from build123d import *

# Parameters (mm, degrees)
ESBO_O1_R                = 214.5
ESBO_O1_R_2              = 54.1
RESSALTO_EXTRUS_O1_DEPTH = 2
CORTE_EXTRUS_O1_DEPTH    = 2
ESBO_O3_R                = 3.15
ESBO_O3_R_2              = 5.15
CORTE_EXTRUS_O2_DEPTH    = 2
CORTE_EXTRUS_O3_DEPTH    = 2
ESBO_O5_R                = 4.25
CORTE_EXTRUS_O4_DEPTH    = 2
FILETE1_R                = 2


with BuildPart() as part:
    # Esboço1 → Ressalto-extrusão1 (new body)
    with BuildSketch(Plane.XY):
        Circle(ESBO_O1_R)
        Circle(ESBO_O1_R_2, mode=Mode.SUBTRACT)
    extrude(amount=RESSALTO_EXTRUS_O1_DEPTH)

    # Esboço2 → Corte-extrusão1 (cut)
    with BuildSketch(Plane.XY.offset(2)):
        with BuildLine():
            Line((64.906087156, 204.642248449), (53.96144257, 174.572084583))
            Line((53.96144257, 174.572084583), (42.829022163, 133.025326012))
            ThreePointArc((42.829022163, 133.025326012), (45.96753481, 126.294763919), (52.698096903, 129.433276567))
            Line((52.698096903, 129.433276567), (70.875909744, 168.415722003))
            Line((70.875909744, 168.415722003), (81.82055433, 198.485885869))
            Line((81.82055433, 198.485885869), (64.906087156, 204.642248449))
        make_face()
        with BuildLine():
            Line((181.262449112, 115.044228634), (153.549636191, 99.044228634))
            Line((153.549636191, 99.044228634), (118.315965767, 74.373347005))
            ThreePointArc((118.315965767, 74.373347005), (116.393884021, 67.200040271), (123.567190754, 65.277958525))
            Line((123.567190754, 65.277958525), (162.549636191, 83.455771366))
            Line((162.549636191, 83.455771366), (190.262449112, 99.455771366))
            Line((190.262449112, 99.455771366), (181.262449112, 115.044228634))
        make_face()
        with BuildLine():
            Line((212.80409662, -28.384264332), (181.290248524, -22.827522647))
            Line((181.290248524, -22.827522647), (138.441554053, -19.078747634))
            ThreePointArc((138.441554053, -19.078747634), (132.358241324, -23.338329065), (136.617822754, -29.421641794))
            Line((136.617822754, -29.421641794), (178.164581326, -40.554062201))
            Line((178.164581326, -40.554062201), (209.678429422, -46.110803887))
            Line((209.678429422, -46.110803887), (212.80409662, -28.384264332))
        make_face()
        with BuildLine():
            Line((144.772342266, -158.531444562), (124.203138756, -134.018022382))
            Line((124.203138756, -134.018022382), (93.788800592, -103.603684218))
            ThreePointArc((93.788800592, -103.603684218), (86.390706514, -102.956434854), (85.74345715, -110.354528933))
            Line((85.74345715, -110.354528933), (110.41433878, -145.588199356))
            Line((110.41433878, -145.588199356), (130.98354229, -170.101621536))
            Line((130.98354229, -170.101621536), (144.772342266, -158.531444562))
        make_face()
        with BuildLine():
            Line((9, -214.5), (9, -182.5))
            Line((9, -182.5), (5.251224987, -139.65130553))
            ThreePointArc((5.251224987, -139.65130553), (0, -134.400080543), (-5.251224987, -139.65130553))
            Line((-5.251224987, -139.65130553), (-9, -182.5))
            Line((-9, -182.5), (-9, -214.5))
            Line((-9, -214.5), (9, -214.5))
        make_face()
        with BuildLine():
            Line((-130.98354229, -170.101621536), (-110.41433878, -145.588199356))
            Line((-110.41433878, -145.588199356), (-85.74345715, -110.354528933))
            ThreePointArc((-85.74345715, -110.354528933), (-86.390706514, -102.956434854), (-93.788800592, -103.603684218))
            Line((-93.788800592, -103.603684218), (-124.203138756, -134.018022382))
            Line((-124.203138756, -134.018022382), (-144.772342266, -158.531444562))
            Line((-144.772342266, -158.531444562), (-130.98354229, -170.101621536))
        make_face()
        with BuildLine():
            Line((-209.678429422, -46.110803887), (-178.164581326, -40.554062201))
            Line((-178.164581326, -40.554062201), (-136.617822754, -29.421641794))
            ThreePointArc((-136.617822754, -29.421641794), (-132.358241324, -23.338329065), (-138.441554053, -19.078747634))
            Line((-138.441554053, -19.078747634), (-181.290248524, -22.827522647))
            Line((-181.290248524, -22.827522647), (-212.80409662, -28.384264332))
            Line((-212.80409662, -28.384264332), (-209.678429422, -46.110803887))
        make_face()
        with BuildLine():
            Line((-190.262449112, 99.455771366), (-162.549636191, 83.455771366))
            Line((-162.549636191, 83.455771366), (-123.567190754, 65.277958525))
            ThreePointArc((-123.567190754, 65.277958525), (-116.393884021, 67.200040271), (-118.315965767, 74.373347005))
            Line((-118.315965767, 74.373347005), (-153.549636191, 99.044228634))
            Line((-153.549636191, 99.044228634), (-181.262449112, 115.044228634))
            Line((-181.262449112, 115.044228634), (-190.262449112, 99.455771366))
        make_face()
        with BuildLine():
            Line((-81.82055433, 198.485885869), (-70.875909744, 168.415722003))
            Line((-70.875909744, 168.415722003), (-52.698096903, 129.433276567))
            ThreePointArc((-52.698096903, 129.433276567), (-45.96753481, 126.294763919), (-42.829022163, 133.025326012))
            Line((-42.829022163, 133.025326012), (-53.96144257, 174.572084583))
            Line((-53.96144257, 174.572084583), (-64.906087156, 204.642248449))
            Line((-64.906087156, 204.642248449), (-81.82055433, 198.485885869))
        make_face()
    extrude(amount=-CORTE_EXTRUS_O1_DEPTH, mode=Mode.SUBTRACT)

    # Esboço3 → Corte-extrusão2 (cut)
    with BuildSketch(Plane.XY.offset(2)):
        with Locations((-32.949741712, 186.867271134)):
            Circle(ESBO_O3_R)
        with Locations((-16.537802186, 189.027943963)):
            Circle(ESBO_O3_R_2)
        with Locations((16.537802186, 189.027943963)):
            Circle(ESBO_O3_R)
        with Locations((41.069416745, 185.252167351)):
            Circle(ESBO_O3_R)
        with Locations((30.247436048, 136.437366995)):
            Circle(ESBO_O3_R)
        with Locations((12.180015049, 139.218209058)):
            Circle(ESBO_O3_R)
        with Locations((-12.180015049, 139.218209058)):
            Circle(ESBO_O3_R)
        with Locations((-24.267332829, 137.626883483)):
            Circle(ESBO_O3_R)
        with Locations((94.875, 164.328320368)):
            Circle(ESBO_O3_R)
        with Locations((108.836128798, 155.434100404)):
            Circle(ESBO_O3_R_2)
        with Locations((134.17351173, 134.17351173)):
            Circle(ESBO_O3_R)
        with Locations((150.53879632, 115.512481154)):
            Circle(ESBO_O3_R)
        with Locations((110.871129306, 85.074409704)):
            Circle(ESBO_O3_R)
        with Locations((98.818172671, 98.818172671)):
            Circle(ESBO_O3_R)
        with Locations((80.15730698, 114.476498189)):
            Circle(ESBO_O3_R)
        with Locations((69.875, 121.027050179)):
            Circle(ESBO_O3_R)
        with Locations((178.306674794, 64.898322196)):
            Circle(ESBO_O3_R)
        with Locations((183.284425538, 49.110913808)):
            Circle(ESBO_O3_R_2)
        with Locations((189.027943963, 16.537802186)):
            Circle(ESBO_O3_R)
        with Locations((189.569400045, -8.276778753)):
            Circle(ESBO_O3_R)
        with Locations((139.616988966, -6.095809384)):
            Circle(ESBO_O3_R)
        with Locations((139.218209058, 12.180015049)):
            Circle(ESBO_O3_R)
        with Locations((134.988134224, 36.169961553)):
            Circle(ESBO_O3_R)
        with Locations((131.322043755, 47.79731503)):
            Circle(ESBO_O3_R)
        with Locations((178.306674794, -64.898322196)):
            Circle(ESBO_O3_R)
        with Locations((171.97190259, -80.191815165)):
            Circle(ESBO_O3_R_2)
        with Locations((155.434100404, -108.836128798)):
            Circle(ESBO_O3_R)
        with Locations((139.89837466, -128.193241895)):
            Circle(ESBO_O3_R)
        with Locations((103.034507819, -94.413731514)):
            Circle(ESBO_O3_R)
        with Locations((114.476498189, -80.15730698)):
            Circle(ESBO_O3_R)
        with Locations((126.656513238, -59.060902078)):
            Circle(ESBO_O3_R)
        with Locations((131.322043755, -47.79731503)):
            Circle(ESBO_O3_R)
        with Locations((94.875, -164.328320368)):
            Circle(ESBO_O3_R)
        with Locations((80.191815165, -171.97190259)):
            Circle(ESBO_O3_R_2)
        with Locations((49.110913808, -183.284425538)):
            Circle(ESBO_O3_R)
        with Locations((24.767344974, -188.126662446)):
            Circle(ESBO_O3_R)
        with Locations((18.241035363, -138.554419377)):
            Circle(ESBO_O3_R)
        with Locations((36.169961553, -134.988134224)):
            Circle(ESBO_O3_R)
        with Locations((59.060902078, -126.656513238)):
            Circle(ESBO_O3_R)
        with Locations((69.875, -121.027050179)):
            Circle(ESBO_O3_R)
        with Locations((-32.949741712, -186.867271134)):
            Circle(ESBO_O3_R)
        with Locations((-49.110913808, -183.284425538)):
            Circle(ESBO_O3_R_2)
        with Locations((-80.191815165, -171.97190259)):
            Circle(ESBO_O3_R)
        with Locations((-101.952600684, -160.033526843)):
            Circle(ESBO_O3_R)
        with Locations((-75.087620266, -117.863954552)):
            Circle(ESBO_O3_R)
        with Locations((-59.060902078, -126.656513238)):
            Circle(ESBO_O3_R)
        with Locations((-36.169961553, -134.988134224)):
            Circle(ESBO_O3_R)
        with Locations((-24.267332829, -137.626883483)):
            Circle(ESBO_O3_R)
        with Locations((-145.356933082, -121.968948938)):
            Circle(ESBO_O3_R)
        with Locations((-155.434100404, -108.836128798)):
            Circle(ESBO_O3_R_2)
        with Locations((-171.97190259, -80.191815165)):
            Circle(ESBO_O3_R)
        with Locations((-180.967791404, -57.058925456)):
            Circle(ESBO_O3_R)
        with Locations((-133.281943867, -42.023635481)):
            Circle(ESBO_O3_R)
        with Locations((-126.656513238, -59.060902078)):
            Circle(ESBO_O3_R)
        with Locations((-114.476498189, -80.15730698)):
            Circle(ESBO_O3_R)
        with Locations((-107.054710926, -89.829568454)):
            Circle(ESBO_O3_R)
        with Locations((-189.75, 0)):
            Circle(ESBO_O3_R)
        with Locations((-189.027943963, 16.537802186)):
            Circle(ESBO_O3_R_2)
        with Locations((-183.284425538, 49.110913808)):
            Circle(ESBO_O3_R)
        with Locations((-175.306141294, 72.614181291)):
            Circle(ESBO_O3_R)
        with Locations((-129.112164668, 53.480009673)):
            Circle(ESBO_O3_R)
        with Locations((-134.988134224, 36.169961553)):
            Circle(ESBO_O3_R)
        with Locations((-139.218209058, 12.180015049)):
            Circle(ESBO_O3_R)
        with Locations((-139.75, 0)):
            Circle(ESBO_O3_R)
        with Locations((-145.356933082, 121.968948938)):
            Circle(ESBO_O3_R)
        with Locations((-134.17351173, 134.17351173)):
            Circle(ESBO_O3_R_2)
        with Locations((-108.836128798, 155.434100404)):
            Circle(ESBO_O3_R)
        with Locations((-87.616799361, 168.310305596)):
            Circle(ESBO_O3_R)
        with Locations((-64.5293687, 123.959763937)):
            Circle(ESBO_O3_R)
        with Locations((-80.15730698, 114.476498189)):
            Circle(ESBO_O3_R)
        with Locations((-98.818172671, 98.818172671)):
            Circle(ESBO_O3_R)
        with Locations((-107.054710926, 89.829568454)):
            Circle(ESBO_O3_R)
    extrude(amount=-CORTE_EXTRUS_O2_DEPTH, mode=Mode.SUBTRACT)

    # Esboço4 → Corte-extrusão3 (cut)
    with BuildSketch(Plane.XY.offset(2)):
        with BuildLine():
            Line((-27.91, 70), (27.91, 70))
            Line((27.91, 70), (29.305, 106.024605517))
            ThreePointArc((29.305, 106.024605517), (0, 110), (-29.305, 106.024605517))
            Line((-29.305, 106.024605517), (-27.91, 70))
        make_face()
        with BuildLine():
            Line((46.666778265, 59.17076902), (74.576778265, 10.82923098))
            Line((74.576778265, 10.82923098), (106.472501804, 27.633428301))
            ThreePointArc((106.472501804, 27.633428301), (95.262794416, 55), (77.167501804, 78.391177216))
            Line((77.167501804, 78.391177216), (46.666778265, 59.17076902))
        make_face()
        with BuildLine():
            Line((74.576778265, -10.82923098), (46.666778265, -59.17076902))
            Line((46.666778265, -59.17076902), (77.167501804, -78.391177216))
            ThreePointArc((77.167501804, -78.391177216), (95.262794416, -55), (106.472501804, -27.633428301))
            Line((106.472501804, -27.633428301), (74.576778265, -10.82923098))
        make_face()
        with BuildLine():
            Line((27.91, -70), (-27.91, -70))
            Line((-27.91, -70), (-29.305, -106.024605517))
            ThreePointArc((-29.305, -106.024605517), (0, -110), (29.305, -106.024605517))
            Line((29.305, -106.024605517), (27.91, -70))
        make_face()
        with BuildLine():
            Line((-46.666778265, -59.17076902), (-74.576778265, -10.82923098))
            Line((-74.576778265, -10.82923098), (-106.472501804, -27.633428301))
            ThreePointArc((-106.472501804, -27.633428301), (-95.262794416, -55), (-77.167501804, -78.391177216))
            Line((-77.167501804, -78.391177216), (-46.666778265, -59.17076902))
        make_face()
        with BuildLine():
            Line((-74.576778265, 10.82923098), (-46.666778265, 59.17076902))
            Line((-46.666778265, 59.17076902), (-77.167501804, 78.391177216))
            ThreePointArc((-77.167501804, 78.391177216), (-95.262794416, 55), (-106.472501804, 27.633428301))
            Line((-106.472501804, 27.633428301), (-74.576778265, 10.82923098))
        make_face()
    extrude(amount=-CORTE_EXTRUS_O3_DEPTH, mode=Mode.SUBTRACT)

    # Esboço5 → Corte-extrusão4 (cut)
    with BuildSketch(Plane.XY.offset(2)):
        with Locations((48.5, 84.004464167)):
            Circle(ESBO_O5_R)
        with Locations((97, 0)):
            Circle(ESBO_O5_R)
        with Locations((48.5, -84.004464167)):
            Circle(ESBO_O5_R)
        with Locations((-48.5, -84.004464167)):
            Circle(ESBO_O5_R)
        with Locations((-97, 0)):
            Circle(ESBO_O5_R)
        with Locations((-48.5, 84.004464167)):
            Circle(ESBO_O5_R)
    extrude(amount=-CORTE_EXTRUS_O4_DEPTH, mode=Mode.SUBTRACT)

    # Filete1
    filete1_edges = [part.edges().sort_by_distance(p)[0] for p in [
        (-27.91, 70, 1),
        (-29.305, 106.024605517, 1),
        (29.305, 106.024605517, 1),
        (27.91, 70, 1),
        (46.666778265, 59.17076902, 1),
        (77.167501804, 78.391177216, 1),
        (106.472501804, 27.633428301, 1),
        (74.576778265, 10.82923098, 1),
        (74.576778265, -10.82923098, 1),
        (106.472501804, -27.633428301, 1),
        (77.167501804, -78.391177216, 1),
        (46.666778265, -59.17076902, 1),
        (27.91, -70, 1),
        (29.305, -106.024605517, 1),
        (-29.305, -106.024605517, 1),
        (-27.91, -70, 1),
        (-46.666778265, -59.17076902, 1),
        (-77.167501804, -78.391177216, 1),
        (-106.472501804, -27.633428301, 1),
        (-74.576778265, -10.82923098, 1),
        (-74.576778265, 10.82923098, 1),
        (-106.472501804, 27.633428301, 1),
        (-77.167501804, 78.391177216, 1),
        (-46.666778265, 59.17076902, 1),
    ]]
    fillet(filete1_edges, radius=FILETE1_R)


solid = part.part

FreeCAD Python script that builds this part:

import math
import FreeCAD as App
import Part
import Sketcher

V = App.Vector
Q = App.Units.Quantity


def edges_at(feature, points):
    """Names of the edges that pass closest to the given points."""
    edges = feature.Shape.Edges
    near = lambda p: min(range(len(edges)), key=lambda i: edges[i].distToShape(Part.Vertex(*p))[0])
    return sorted({f"Edge{near(p) + 1}" for p in points})

doc = App.newDocument("Part")
body = doc.addObject("PartDesign::Body", "Body")

sketch1 = body.newObject("Sketcher::SketchObject", "Sketch")
sketch1.AttachmentSupport = (doc.getObject("XY_Plane"), [""])
sketch1.MapMode = "FlatFace"
sketch1.addGeometry([
    Part.Circle(V(0, 0, 0), V(0, 0, 1), 214),
    Part.Circle(V(0, 0, 0), V(0, 0, 1), 54),
], False)
sketch1.addConstraint([
    Sketcher.Constraint("Coincident", 0, 3, -1, 1),
    Sketcher.Constraint("Coincident", 1, 3, -1, 1),
    Sketcher.Constraint("Diameter", 0, 429.0),
    Sketcher.Constraint("Diameter", 1, 108.2),
])
pad1 = body.newObject("PartDesign::Pad", "Pad")
pad1.Profile = sketch1
pad1.Length = 2

sketch2 = body.newObject("Sketcher::SketchObject", "Sketch001")
sketch2.AttachmentSupport = (doc.getObject("XY_Plane"), [""])
sketch2.MapMode = "FlatFace"
sketch2.AttachmentOffset = App.Placement(V(0, 0, 2), App.Rotation())
sketch2.addGeometry([
    Part.LineSegment(V(65, 205, 0), V(54, 175, 0)),
    Part.LineSegment(V(54, 175, 0), V(43, 133, 0)),
    Part.ArcOfCircle(Part.Circle(V(48, 131, 0), V(0, 0, 1), 5), math.radians(160), math.radians(340)),
    Part.LineSegment(V(53, 129, 0), V(71, 168, 0)),
    Part.LineSegment(V(71, 168, 0), V(82, 198, 0)),
    Part.LineSegment(V(82, 198, 0), V(65, 205, 0)),
    Part.LineSegment(V(181, 115, 0), V(154, 99, 0)),
    Part.LineSegment(V(154, 99, 0), V(118, 74, 0)),
    Part.ArcOfCircle(Part.Circle(V(121, 70, 0), V(0, 0, 1), 5), math.radians(120), math.radians(300)),
    Part.LineSegment(V(124, 65, 0), V(163, 83, 0)),
    Part.LineSegment(V(163, 83, 0), V(190, 99, 0)),
    Part.LineSegment(V(190, 99, 0), V(181, 115, 0)),
    Part.LineSegment(V(213, -28, 0), V(181, -23, 0)),
    Part.LineSegment(V(181, -23, 0), V(138, -19, 0)),
    Part.ArcOfCircle(Part.Circle(V(138, -24, 0), V(0, 0, 1), 5), math.radians(80), math.radians(260)),
    Part.LineSegment(V(137, -29, 0), V(178, -41, 0)),
    Part.LineSegment(V(178, -41, 0), V(210, -46, 0)),
    Part.LineSegment(V(210, -46, 0), V(213, -28, 0)),
    Part.LineSegment(V(145, -159, 0), V(124, -134, 0)),
    Part.LineSegment(V(124, -134, 0), V(94, -104, 0)),
    Part.ArcOfCircle(Part.Circle(V(90, -107, 0), V(0, 0, 1), 5), math.radians(40), math.radians(220)),
    Part.LineSegment(V(86, -110, 0), V(110, -146, 0)),
    Part.LineSegment(V(110, -146, 0), V(131, -170, 0)),
    Part.LineSegment(V(131, -170, 0), V(145, -159, 0)),
    Part.LineSegment(V(9, -214, 0), V(9, -182, 0)),
    Part.LineSegment(V(9, -182, 0), V(5, -140, 0)),
    Part.ArcOfCircle(Part.Circle(V(0, -140, 0), V(0, 0, 1), 5), math.radians(0), math.radians(180)),
    Part.LineSegment(V(-5, -140, 0), V(-9, -182, 0)),
    Part.LineSegment(V(-9, -182, 0), V(-9, -214, 0)),
    Part.LineSegment(V(-9, -214, 0), V(9, -214, 0)),
    Part.LineSegment(V(-131, -170, 0), V(-110, -146, 0)),
    Part.LineSegment(V(-110, -146, 0), V(-86, -110, 0)),
    Part.ArcOfCircle(Part.Circle(V(-90, -107, 0), V(0, 0, 1), 5), math.radians(-40), math.radians(140)),
    Part.LineSegment(V(-94, -104, 0), V(-124, -134, 0)),
    Part.LineSegment(V(-124, -134, 0), V(-145, -159, 0)),
    Part.LineSegment(V(-145, -159, 0), V(-131, -170, 0)),
    Part.LineSegment(V(-210, -46, 0), V(-178, -41, 0)),
    Part.LineSegment(V(-178, -41, 0), V(-137, -29, 0)),
    Part.ArcOfCircle(Part.Circle(V(-138, -24, 0), V(0, 0, 1), 5), math.radians(-80), math.radians(100)),
    Part.LineSegment(V(-138, -19, 0), V(-181, -23, 0)),
    Part.LineSegment(V(-181, -23, 0), V(-213, -28, 0)),
    Part.LineSegment(V(-213, -28, 0), V(-210, -46, 0)),
    Part.LineSegment(V(-190, 99, 0), V(-163, 83, 0)),
    Part.LineSegment(V(-163, 83, 0), V(-124, 65, 0)),
    Part.ArcOfCircle(Part.Circle(V(-121, 70, 0), V(0, 0, 1), 5), math.radians(-120), math.radians(60)),
    Part.LineSegment(V(-118, 74, 0), V(-154, 99, 0)),
    Part.LineSegment(V(-154, 99, 0), V(-181, 115, 0)),
    Part.LineSegment(V(-181, 115, 0), V(-190, 99, 0)),
    Part.LineSegment(V(-82, 198, 0), V(-71, 168, 0)),
    Part.LineSegment(V(-71, 168, 0), V(-53, 129, 0)),
    Part.ArcOfCircle(Part.Circle(V(-48, 131, 0), V(0, 0, 1), 5), math.radians(-160), math.radians(20)),
    Part.LineSegment(V(-43, 133, 0), V(-54, 175, 0)),
    Part.LineSegment(V(-54, 175, 0), V(-65, 205, 0)),
    Part.LineSegment(V(-65, 205, 0), V(-82, 198, 0)),
], False)
sketch2.addConstraint([
    Sketcher.Constraint("Coincident", 0, 2, 1, 1),
    Sketcher.Constraint("Coincident", 1, 2, 2, 1),
    Sketcher.Constraint("Coincident", 2, 2, 3, 1),
    Sketcher.Constraint("Coincident", 3, 2, 4, 1),
    Sketcher.Constraint("Coincident", 4, 2, 5, 1),
    Sketcher.Constraint("Coincident", 5, 2, 0, 1),
    Sketcher.Constraint("Coincident", 6, 2, 7, 1),
    Sketcher.Constraint("Coincident", 7, 2, 8, 1),
    Sketcher.Constraint("Coincident", 8, 2, 9, 1),
    Sketcher.Constraint("Coincident", 9, 2, 10, 1),
    Sketcher.Constraint("Coincident", 10, 2, 11, 1),
    Sketcher.Constraint("Coincident", 11, 2, 6, 1),
    Sketcher.Constraint("Coincident", 12, 2, 13, 1),
    Sketcher.Constraint("Coincident", 13, 2, 14, 1),
    Sketcher.Constraint("Coincident", 14, 2, 15, 1),
    Sketcher.Constraint("Coincident", 15, 2, 16, 1),
    Sketcher.Constraint("Coincident", 16, 2, 17, 1),
    Sketcher.Constraint("Coincident", 17, 2, 12, 1),
    Sketcher.Constraint("Coincident", 18, 2, 19, 1),
    Sketcher.Constraint("Coincident", 19, 2, 20, 1),
    Sketcher.Constraint("Coincident", 20, 2, 21, 1),
    Sketcher.Constraint("Coincident", 21, 2, 22, 1),
    Sketcher.Constraint("Coincident", 22, 2, 23, 1),
    Sketcher.Constraint("Coincident", 23, 2, 18, 1),
    Sketcher.Constraint("Coincident", 24, 2, 25, 1),
    Sketcher.Constraint("Coincident", 25, 2, 26, 1),
    Sketcher.Constraint("Coincident", 26, 2, 27, 1),
    Sketcher.Constraint("Coincident", 27, 2, 28, 1),
    Sketcher.Constraint("Coincident", 28, 2, 29, 1),
    Sketcher.Constraint("Coincident", 29, 2, 24, 1),
    Sketcher.Constraint("Coincident", 30, 2, 31, 1),
    Sketcher.Constraint("Coincident", 31, 2, 32, 1),
    Sketcher.Constraint("Coincident", 32, 2, 33, 1),
    Sketcher.Constraint("Coincident", 33, 2, 34, 1),
    Sketcher.Constraint("Coincident", 34, 2, 35, 1),
    Sketcher.Constraint("Coincident", 35, 2, 30, 1),
    Sketcher.Constraint("Coincident", 36, 2, 37, 1),
    Sketcher.Constraint("Coincident", 37, 2, 38, 1),
    Sketcher.Constraint("Coincident", 38, 2, 39, 1),
    Sketcher.Constraint("Coincident", 39, 2, 40, 1),
    Sketcher.Constraint("Coincident", 40, 2, 41, 1),
    Sketcher.Constraint("Coincident", 41, 2, 36, 1),
    Sketcher.Constraint("Coincident", 42, 2, 43, 1),
    Sketcher.Constraint("Coincident", 43, 2, 44, 1),
    Sketcher.Constraint("Coincident", 44, 2, 45, 1),
    Sketcher.Constraint("Coincident", 45, 2, 46, 1),
    Sketcher.Constraint("Coincident", 46, 2, 47, 1),
    Sketcher.Constraint("Coincident", 47, 2, 42, 1),
    Sketcher.Constraint("Coincident", 48, 2, 49, 1),
    Sketcher.Constraint("Coincident", 49, 2, 50, 1),
    Sketcher.Constraint("Coincident", 50, 2, 51, 1),
    Sketcher.Constraint("Coincident", 51, 2, 52, 1),
    Sketcher.Constraint("Coincident", 52, 2, 53, 1),
    Sketcher.Constraint("Coincident", 53, 2, 48, 1),
    Sketcher.Constraint("Vertical", 24),
    Sketcher.Constraint("Vertical", 28),
    Sketcher.Constraint("Horizontal", 29),
    Sketcher.Constraint("Equal", 2, 8),
    Sketcher.Constraint("Equal", 8, 14),
    Sketcher.Constraint("Equal", 14, 20),
    Sketcher.Constraint("Equal", 20, 26),
    Sketcher.Constraint("Equal", 26, 32),
    Sketcher.Constraint("Equal", 32, 38),
    Sketcher.Constraint("Equal", 38, 44),
    Sketcher.Constraint("Equal", 44, 50),
    Sketcher.Constraint("Symmetric", 20, 3, 32, 3, -2),
    Sketcher.Constraint("Symmetric", 14, 3, 38, 3, -2),
    Sketcher.Constraint("Symmetric", 8, 3, 44, 3, -2),
    Sketcher.Constraint("Symmetric", 2, 3, 50, 3, -2),
    Sketcher.Constraint("Symmetric", 25, 2, 26, 2, -2),
    Sketcher.Constraint("Symmetric", 24, 2, 27, 2, -2),
    Sketcher.Constraint("Symmetric", 21, 2, 30, 2, -2),
    Sketcher.Constraint("Symmetric", 18, 2, 33, 2, -2),
    Sketcher.Constraint("Symmetric", 23, 2, 34, 2, -2),
    Sketcher.Constraint("Symmetric", 22, 2, 35, 2, -2),
    Sketcher.Constraint("Symmetric", 15, 2, 36, 2, -2),
    Sketcher.Constraint("Symmetric", 12, 2, 39, 2, -2),
    Sketcher.Constraint("Symmetric", 17, 2, 40, 2, -2),
    Sketcher.Constraint("Symmetric", 16, 2, 41, 2, -2),
    Sketcher.Constraint("Symmetric", 9, 2, 42, 2, -2),
    Sketcher.Constraint("Symmetric", 6, 2, 45, 2, -2),
    Sketcher.Constraint("Symmetric", 11, 2, 46, 2, -2),
    Sketcher.Constraint("Symmetric", 10, 2, 47, 2, -2),
    Sketcher.Constraint("Symmetric", 3, 2, 48, 2, -2),
    Sketcher.Constraint("Symmetric", 0, 2, 51, 2, -2),
    Sketcher.Constraint("Symmetric", 5, 2, 52, 2, -2),
    Sketcher.Constraint("Symmetric", 4, 2, 53, 2, -2),
    Sketcher.Constraint("Parallel", 0, 4),
    Sketcher.Constraint("Perpendicular", 4, 5),
    Sketcher.Constraint("Parallel", 6, 10),
    Sketcher.Constraint("Perpendicular", 10, 11),
    Sketcher.Constraint("Perpendicular", 1, 15),
    Sketcher.Constraint("Parallel", 12, 16),
    Sketcher.Constraint("Perpendicular", 16, 17),
    Sketcher.Constraint("Perpendicular", 7, 21),
    Sketcher.Constraint("Parallel", 18, 22),
    Sketcher.Constraint("Perpendicular", 22, 23),
    Sketcher.Constraint("Perpendicular", 13, 27),
    Sketcher.Constraint("Perpendicular", 19, 33),
    Sketcher.Constraint("Perpendicular", 25, 39),
    Sketcher.Constraint("Perpendicular", 3, 43),
    Sketcher.Constraint("Perpendicular", 31, 45),
    Sketcher.Constraint("Perpendicular", 9, 49),
    Sketcher.Constraint("Perpendicular", 37, 51),
    Sketcher.Constraint("Horizontal", 26, 3, 25, 2),
    Sketcher.Constraint("Horizontal", 20, 2, 31, 2),
    Sketcher.Constraint("Horizontal", 19, 2, 32, 2),
    Sketcher.Constraint("Horizontal", 14, 2, 37, 2),
    Sketcher.Constraint("Horizontal", 8, 2, 43, 2),
    Sketcher.Constraint("Equal", 1, 3),
    Sketcher.Constraint("Equal", 0, 4),
    Sketcher.Constraint("Equal", 4, 6),
    Sketcher.Constraint("Equal", 3, 7),
    Sketcher.Constraint("Equal", 7, 9),
    Sketcher.Constraint("Equal", 6, 10),
    Sketcher.Constraint("Equal", 5, 11),
    Sketcher.Constraint("Equal", 10, 12),
    Sketcher.Constraint("Equal", 9, 13),
    Sketcher.Constraint("Equal", 13, 15),
    Sketcher.Constraint("Equal", 12, 16),
    Sketcher.Constraint("Equal", 11, 17),
    Sketcher.Constraint("Equal", 16, 18),
    Sketcher.Constraint("Equal", 15, 19),
    Sketcher.Constraint("Equal", 19, 21),
    Sketcher.Constraint("Equal", 18, 22),
    Sketcher.Constraint("Equal", 17, 23),
    Sketcher.Constraint("Equal", 21, 25),
    Sketcher.Constraint("DistanceX", 29, 1, 29, 2, 18.0),
    Sketcher.Constraint("DistanceY", 24, 1, 24, 2, 32.0),
    Sketcher.Constraint("Angle", 0, Q("-110 deg")),
    Sketcher.Constraint("Angle", 1, Q("-105 deg")),
    Sketcher.Constraint("Angle", 6, Q("-150 deg")),
    Sketcher.Constraint("Angle", 12, Q("170 deg")),
    Sketcher.Constraint("Angle", 18, Q("130 deg")),
    Sketcher.Constraint("Distance", 0, 32.0),
    Sketcher.Constraint("DistanceY", 24, 2, -1, 1, 182.5),
    Sketcher.Constraint("Radius", 2, 5.251225),
    Sketcher.Constraint("DistanceY", -1, 1, 2, 3, 131.229301),
    Sketcher.Constraint("DistanceX", -1, 1, 19, 2, 93.788801),
    Sketcher.Constraint("DistanceY", 21, 2, -1, 1, 145.588199),
    Sketcher.Constraint("DistanceX", -1, 1, 2, 3, 47.76356),
    Sketcher.Constraint("DistanceX", -1, 1, 8, 3, 120.941578),
    Sketcher.Constraint("DistanceX", -1, 1, 14, 3, 137.529688),
    Sketcher.Constraint("DistanceX", -1, 1, 20, 3, 89.766129),
    Sketcher.Constraint("DistanceX", -1, 1, 3, 2, 70.87591),
    Sketcher.Constraint("DistanceY", -1, 1, 6, 2, 99.044229),
    Sketcher.Constraint("DistanceX", -1, 1, 8, 2, 123.567191),
    Sketcher.Constraint("DistanceX", -1, 1, 12, 2, 181.290249),
    Sketcher.Constraint("DistanceY", 14, 2, -1, 1, 29.421642),
])
pocket1 = body.newObject("PartDesign::Pocket", "Pocket")
pocket1.Profile = sketch2
pocket1.Length = 2

sketch3 = body.newObject("Sketcher::SketchObject", "Sketch002")
sketch3.AttachmentSupport = (doc.getObject("XY_Plane"), [""])
sketch3.MapMode = "FlatFace"
sketch3.AttachmentOffset = App.Placement(V(0, 0, 2), App.Rotation())
sketch3.addGeometry([
    Part.Circle(V(-32.9, 186.9, 0), V(0, 0, 1), 3.1),
    Part.Circle(V(-16.5, 189, 0), V(0, 0, 1), 5.2),
    Part.Circle(V(16.5, 189, 0), V(0, 0, 1), 3.1),
    Part.Circle(V(41.1, 185.3, 0), V(0, 0, 1), 3.1),
    Part.Circle(V(30.2, 136.4, 0), V(0, 0, 1), 3.1),
    Part.Circle(V(12.2, 139.2, 0), V(0, 0, 1), 3.1),
    Part.Circle(V(-12.2, 139.2, 0), V(0, 0, 1), 3.1),
    Part.Circle(V(-24.3, 137.6, 0), V(0, 0, 1), 3.1),
    Part.Circle(V(94.9, 164.3, 0), V(0, 0, 1), 3.1),
    Part.Circle(V(108.8, 155.4, 0), V(0, 0, 1), 5.2),
    Part.Circle(V(134.2, 134.2, 0), V(0, 0, 1), 3.1),
    Part.Circle(V(150.5, 115.5, 0), V(0, 0, 1), 3.1),
    Part.Circle(V(110.9, 85.1, 0), V(0, 0, 1), 3.1),
    Part.Circle(V(98.8, 98.8, 0), V(0, 0, 1), 3.1),
    Part.Circle(V(80.2, 114.5, 0), V(0, 0, 1), 3.1),
    Part.Circle(V(69.9, 121, 0), V(0, 0, 1), 3.1),
    Part.Circle(V(178.3, 64.9, 0), V(0, 0, 1), 3.1),
    Part.Circle(V(183.3, 49.1, 0), V(0, 0, 1), 5.2),
    Part.Circle(V(189, 16.5, 0), V(0, 0, 1), 3.1),
    Part.Circle(V(189.6, -8.3, 0), V(0, 0, 1), 3.1),
    Part.Circle(V(139.6, -6.1, 0), V(0, 0, 1), 3.1),
    Part.Circle(V(139.2, 12.2, 0), V(0, 0, 1), 3.1),
    Part.Circle(V(135, 36.2, 0), V(0, 0, 1), 3.1),
    Part.Circle(V(131.3, 47.8, 0), V(0, 0, 1), 3.1),
    Part.Circle(V(178.3, -64.9, 0), V(0, 0, 1), 3.1),
    Part.Circle(V(172, -80.2, 0), V(0, 0, 1), 5.2),
    Part.Circle(V(155.4, -108.8, 0), V(0, 0, 1), 3.1),
    Part.Circle(V(139.9, -128.2, 0), V(0, 0, 1), 3.1),
    Part.Circle(V(103, -94.4, 0), V(0, 0, 1), 3.1),
    Part.Circle(V(114.5, -80.2, 0), V(0, 0, 1), 3.1),
    Part.Circle(V(126.7, -59.1, 0), V(0, 0, 1), 3.1),
    Part.Circle(V(131.3, -47.8, 0), V(0, 0, 1), 3.1),
    Part.Circle(V(94.9, -164.3, 0), V(0, 0, 1), 3.1),
    Part.Circle(V(80.2, -172, 0), V(0, 0, 1), 5.2),
    Part.Circle(V(49.1, -183.3, 0), V(0, 0, 1), 3.1),
    Part.Circle(V(24.8, -188.1, 0), V(0, 0, 1), 3.1),
    Part.Circle(V(18.2, -138.6, 0), V(0, 0, 1), 3.1),
    Part.Circle(V(36.2, -135, 0), V(0, 0, 1), 3.1),
    Part.Circle(V(59.1, -126.7, 0), V(0, 0, 1), 3.1),
    Part.Circle(V(69.9, -121, 0), V(0, 0, 1), 3.1),
    Part.Circle(V(-32.9, -186.9, 0), V(0, 0, 1), 3.1),
    Part.Circle(V(-49.1, -183.3, 0), V(0, 0, 1), 5.2),
    Part.Circle(V(-80.2, -172, 0), V(0, 0, 1), 3.1),
    Part.Circle(V(-102, -160, 0), V(0, 0, 1), 3.1),
    Part.Circle(V(-75.1, -117.9, 0), V(0, 0, 1), 3.1),
    Part.Circle(V(-59.1, -126.7, 0), V(0, 0, 1), 3.1),
    Part.Circle(V(-36.2, -135, 0), V(0, 0, 1), 3.1),
    Part.Circle(V(-24.3, -137.6, 0), V(0, 0, 1), 3.1),
    Part.Circle(V(-145.4, -122, 0), V(0, 0, 1), 3.1),
    Part.Circle(V(-155.4, -108.8, 0), V(0, 0, 1), 5.2),
    Part.Circle(V(-172, -80.2, 0), V(0, 0, 1), 3.1),
    Part.Circle(V(-181, -57.1, 0), V(0, 0, 1), 3.1),
    Part.Circle(V(-133.3, -42, 0), V(0, 0, 1), 3.1),
    Part.Circle(V(-126.7, -59.1, 0), V(0, 0, 1), 3.1),
    Part.Circle(V(-114.5, -80.2, 0), V(0, 0, 1), 3.1),
    Part.Circle(V(-107.1, -89.8, 0), V(0, 0, 1), 3.1),
    Part.Circle(V(-189.8, 0, 0), V(0, 0, 1), 3.1),
    Part.Circle(V(-189, 16.5, 0), V(0, 0, 1), 5.2),
    Part.Circle(V(-183.3, 49.1, 0), V(0, 0, 1), 3.1),
    Part.Circle(V(-175.3, 72.6, 0), V(0, 0, 1), 3.1),
    Part.Circle(V(-129.1, 53.5, 0), V(0, 0, 1), 3.1),
    Part.Circle(V(-135, 36.2, 0), V(0, 0, 1), 3.1),
    Part.Circle(V(-139.2, 12.2, 0), V(0, 0, 1), 3.1),
    Part.Circle(V(-139.8, 0, 0), V(0, 0, 1), 3.1),
    Part.Circle(V(-145.4, 122, 0), V(0, 0, 1), 3.1),
    Part.Circle(V(-134.2, 134.2, 0), V(0, 0, 1), 5.2),
    Part.Circle(V(-108.8, 155.4, 0), V(0, 0, 1), 3.1),
    Part.Circle(V(-87.6, 168.3, 0), V(0, 0, 1), 3.1),
    Part.Circle(V(-64.5, 124, 0), V(0, 0, 1), 3.1),
    Part.Circle(V(-80.2, 114.5, 0), V(0, 0, 1), 3.1),
    Part.Circle(V(-98.8, 98.8, 0), V(0, 0, 1), 3.1),
    Part.Circle(V(-107.1, 89.8, 0), V(0, 0, 1), 3.1),
], False)
sketch3.addConstraint([
    Sketcher.Constraint("Equal", 0, 2),
    Sketcher.Constraint("Equal", 2, 3),
    Sketcher.Constraint("Equal", 3, 4),
    Sketcher.Constraint("Equal", 4, 5),
    Sketcher.Constraint("Equal", 5, 6),
    Sketcher.Constraint("Equal", 6, 7),
    Sketcher.Constraint("Equal", 7, 8),
    Sketcher.Constraint("Equal", 1, 9),
    Sketcher.Constraint("Equal", 8, 10),
    Sketcher.Constraint("Equal", 10, 11),
    Sketcher.Constraint("Equal", 11, 12),
    Sketcher.Constraint("Equal", 12, 13),
    Sketcher.Constraint("Equal", 13, 14),
    Sketcher.Constraint("Equal", 14, 15),
    Sketcher.Constraint("Equal", 15, 16),
    Sketcher.Constraint("Equal", 9, 17),
    Sketcher.Constraint("Equal", 16, 18),
    Sketcher.Constraint("Equal", 18, 19),
    Sketcher.Constraint("Equal", 19, 20),
    Sketcher.Constraint("Equal", 20, 21),
    Sketcher.Constraint("Equal", 21, 22),
    Sketcher.Constraint("Equal", 22, 23),
    Sketcher.Constraint("Equal", 23, 24),
    Sketcher.Constraint("Equal", 17, 25),
    Sketcher.Constraint("Equal", 24, 26),
    Sketcher.Constraint("Equal", 26, 27),
    Sketcher.Constraint("Equal", 27, 28),
    Sketcher.Constraint("Equal", 28, 29),
    Sketcher.Constraint("Equal", 29, 30),
    Sketcher.Constraint("Equal", 30, 31),
    Sketcher.Constraint("Equal", 31, 32),
    Sketcher.Constraint("Equal", 25, 33),
    Sketcher.Constraint("Equal", 32, 34),
    Sketcher.Constraint("Equal", 34, 35),
    Sketcher.Constraint("Equal", 35, 36),
    Sketcher.Constraint("Equal", 36, 37),
    Sketcher.Constraint("Equal", 37, 38),
    Sketcher.Constraint("Equal", 38, 39),
    Sketcher.Constraint("Equal", 39, 40),
    Sketcher.Constraint("Equal", 33, 41),
    Sketcher.Constraint("Equal", 40, 42),
    Sketcher.Constraint("Equal", 42, 43),
    Sketcher.Constraint("Equal", 43, 44),
    Sketcher.Constraint("Equal", 44, 45),
    Sketcher.Constraint("Equal", 45, 46),
    Sketcher.Constraint("Equal", 46, 47),
    Sketcher.Constraint("Equal", 47, 48),
    Sketcher.Constraint("Equal", 41, 49),
    Sketcher.Constraint("Equal", 48, 50),
    Sketcher.Constraint("Equal", 50, 51),
    Sketcher.Constraint("Equal", 51, 52),
    Sketcher.Constraint("Equal", 52, 53),
    Sketcher.Constraint("Equal", 53, 54),
    Sketcher.Constraint("Equal", 54, 55),
    Sketcher.Constraint("Equal", 55, 56),
    Sketcher.Constraint("Equal", 49, 57),
    Sketcher.Constraint("Equal", 56, 58),
    Sketcher.Constraint("Equal", 58, 59),
    Sketcher.Constraint("Equal", 59, 60),
    Sketcher.Constraint("Equal", 60, 61),
    Sketcher.Constraint("Equal", 61, 62),
    Sketcher.Constraint("Equal", 62, 63),
    Sketcher.Constraint("Equal", 63, 64),
    Sketcher.Constraint("Equal", 57, 65),
    Sketcher.Constraint("Equal", 64, 66),
    Sketcher.Constraint("Equal", 66, 67),
    Sketcher.Constraint("Equal", 67, 68),
    Sketcher.Constraint("Equal", 68, 69),
    Sketcher.Constraint("Equal", 69, 70),
    Sketcher.Constraint("Equal", 70, 71),
    Sketcher.Constraint("Symmetric", 1, 3, 2, 3, -2),
    Sketcher.Constraint("Symmetric", 5, 3, 6, 3, -2),
    Sketcher.Constraint("Symmetric", 34, 3, 41, 3, -2),
    Sketcher.Constraint("Symmetric", 33, 3, 42, 3, -2),
    Sketcher.Constraint("Symmetric", 38, 3, 45, 3, -2),
    Sketcher.Constraint("Symmetric", 37, 3, 46, 3, -2),
    Sketcher.Constraint("Symmetric", 26, 3, 49, 3, -2),
    Sketcher.Constraint("Symmetric", 25, 3, 50, 3, -2),
    Sketcher.Constraint("Symmetric", 30, 3, 53, 3, -2),
    Sketcher.Constraint("Symmetric", 29, 3, 54, 3, -2),
    Sketcher.Constraint("Symmetric", 18, 3, 57, 3, -2),
    Sketcher.Constraint("Symmetric", 17, 3, 58, 3, -2),
    Sketcher.Constraint("Symmetric", 22, 3, 61, 3, -2),
    Sketcher.Constraint("Symmetric", 21, 3, 62, 3, -2),
    Sketcher.Constraint("Symmetric", 10, 3, 65, 3, -2),
    Sketcher.Constraint("Symmetric", 9, 3, 66, 3, -2),
    Sketcher.Constraint("Symmetric", 14, 3, 69, 3, -2),
    Sketcher.Constraint("Symmetric", 13, 3, 70, 3, -2),
    Sketcher.Constraint("Symmetric", 16, 3, 24, 3, -1),
    Sketcher.Constraint("Symmetric", 23, 3, 31, 3, -1),
    Sketcher.Constraint("Symmetric", 8, 3, 32, 3, -1),
    Sketcher.Constraint("Symmetric", 15, 3, 39, 3, -1),
    Sketcher.Constraint("Symmetric", 0, 3, 40, 3, -1),
    Sketcher.Constraint("Symmetric", 7, 3, 47, 3, -1),
    Sketcher.Constraint("Symmetric", 48, 3, 64, 3, -1),
    Sketcher.Constraint("Symmetric", 55, 3, 71, 3, -1),
    Sketcher.Constraint("PointOnObject", 56, 3, -1),
    Sketcher.Constraint("PointOnObject", 63, 3, -1),
    Sketcher.Constraint("Diameter", 0, 6.3),
    Sketcher.Constraint("Diameter", 1, 10.3),
    Sketcher.Constraint("DistanceX", 56, 3, -1, 1, 189.75),
    Sketcher.Constraint("DistanceX", 63, 3, -1, 1, 139.75),
    Sketcher.Constraint("DistanceX", -1, 1, 8, 3, 94.875),
    Sketcher.Constraint("DistanceX", -1, 1, 15, 3, 69.875),
    Sketcher.Constraint("DistanceY", -1, 1, 9, 3, 155.4341),
    Sketcher.Constraint("DistanceY", -1, 1, 14, 3, 114.476498),
    Sketcher.Constraint("DistanceX", -1, 1, 19, 3, 189.5694),
    Sketcher.Constraint("DistanceX", -1, 1, 26, 3, 155.4341),
    Sketcher.Constraint("DistanceX", -1, 1, 29, 3, 114.476498),
    Sketcher.Constraint("DistanceX", 43, 3, -1, 1, 101.952601),
    Sketcher.Constraint("DistanceX", 67, 3, -1, 1, 87.616799),
    Sketcher.Constraint("DistanceX", 0, 3, -1, 1, 32.949742),
    Sketcher.Constraint("DistanceY", -1, 1, 0, 3, 186.867271),
    Sketcher.Constraint("DistanceY", -1, 1, 5, 3, 139.218209),
    Sketcher.Constraint("DistanceY", -1, 1, 8, 3, 164.32832),
    Sketcher.Constraint("DistanceX", -1, 1, 9, 3, 108.836129),
    Sketcher.Constraint("DistanceX", -1, 1, 10, 3, 134.173512),
    Sketcher.Constraint("DistanceY", -1, 1, 10, 3, 134.173512),
    Sketcher.Constraint("DistanceY", -1, 1, 11, 3, 115.512481),
    Sketcher.Constraint("DistanceX", -1, 1, 12, 3, 110.871129),
    Sketcher.Constraint("DistanceY", -1, 1, 12, 3, 85.07441),
    Sketcher.Constraint("DistanceY", -1, 1, 15, 3, 121.02705),
    Sketcher.Constraint("DistanceY", 19, 3, -1, 1, 8.276779),
    Sketcher.Constraint("DistanceX", -1, 1, 20, 3, 139.616989),
    Sketcher.Constraint("DistanceY", 20, 3, -1, 1, 6.095809),
    Sketcher.Constraint("DistanceX", -1, 1, 21, 3, 139.218209),
    Sketcher.Constraint("DistanceY", -1, 1, 22, 3, 36.169962),
    Sketcher.Constraint("DistanceY", 26, 3, -1, 1, 108.836129),
    Sketcher.Constraint("DistanceY", 27, 3, -1, 1, 128.193242),
    Sketcher.Constraint("DistanceY", 28, 3, -1, 1, 94.413732),
    Sketcher.Constraint("DistanceY", 36, 3, -1, 1, 138.554419),
    Sketcher.Constraint("DistanceX", -1, 1, 37, 3, 36.169962),
    Sketcher.Constraint("DistanceX", 44, 3, -1, 1, 75.08762),
    Sketcher.Constraint("DistanceY", 48, 3, -1, 1, 121.968949),
    Sketcher.Constraint("DistanceX", 51, 3, -1, 1, 180.967791),
    Sketcher.Constraint("DistanceX", 55, 3, -1, 1, 107.054711),
    Sketcher.Constraint("DistanceY", 55, 3, -1, 1, 89.829568),
    Sketcher.Constraint("DistanceX", 59, 3, -1, 1, 175.306141),
    Sketcher.Constraint("DistanceY", -1, 1, 59, 3, 72.614181),
    Sketcher.Constraint("DistanceY", -1, 1, 60, 3, 53.48001),
    Sketcher.Constraint("DistanceX", 68, 3, -1, 1, 64.529369),
    Sketcher.Constraint("DistanceX", 1, 3, -1, 1, 16.537802),
    Sketcher.Constraint("DistanceY", -1, 1, 1, 3, 189.027944),
    Sketcher.Constraint("DistanceX", -1, 1, 3, 3, 41.069417),
    Sketcher.Constraint("DistanceY", -1, 1, 3, 3, 185.252167),
    Sketcher.Constraint("DistanceX", -1, 1, 4, 3, 30.247436),
    Sketcher.Constraint("DistanceY", -1, 1, 4, 3, 136.437367),
    Sketcher.Constraint("DistanceX", -1, 1, 5, 3, 12.180015),
    Sketcher.Constraint("DistanceX", 7, 3, -1, 1, 24.267333),
    Sketcher.Constraint("DistanceY", -1, 1, 7, 3, 137.626883),
    Sketcher.Constraint("DistanceX", -1, 1, 11, 3, 150.538796),
    Sketcher.Constraint("DistanceX", -1, 1, 13, 3, 98.818173),
    Sketcher.Constraint("DistanceY", -1, 1, 13, 3, 98.818173),
    Sketcher.Constraint("DistanceX", -1, 1, 14, 3, 80.157307),
    Sketcher.Constraint("DistanceX", -1, 1, 16, 3, 178.306675),
    Sketcher.Constraint("DistanceY", -1, 1, 16, 3, 64.898322),
    Sketcher.Constraint("DistanceX", -1, 1, 17, 3, 183.284426),
    Sketcher.Constraint("DistanceY", -1, 1, 17, 3, 49.110914),
    Sketcher.Constraint("DistanceX", -1, 1, 18, 3, 189.027944),
    Sketcher.Constraint("DistanceY", -1, 1, 18, 3, 16.537802),
    Sketcher.Constraint("DistanceY", -1, 1, 21, 3, 12.180015),
    Sketcher.Constraint("DistanceX", -1, 1, 22, 3, 134.988134),
    Sketcher.Constraint("DistanceX", -1, 1, 23, 3, 131.322044),
    Sketcher.Constraint("DistanceY", -1, 1, 23, 3, 47.797315),
    Sketcher.Constraint("DistanceX", -1, 1, 25, 3, 171.971903),
    Sketcher.Constraint("DistanceY", 25, 3, -1, 1, 80.191815),
    Sketcher.Constraint("DistanceX", -1, 1, 27, 3, 139.898375),
    Sketcher.Constraint("DistanceX", -1, 1, 28, 3, 103.034508),
    Sketcher.Constraint("DistanceY", 29, 3, -1, 1, 80.157307),
    Sketcher.Constraint("DistanceX", -1, 1, 30, 3, 126.656513),
    Sketcher.Constraint("DistanceY", 30, 3, -1, 1, 59.060902),
    Sketcher.Constraint("DistanceX", -1, 1, 33, 3, 80.191815),
    Sketcher.Constraint("DistanceY", 33, 3, -1, 1, 171.971903),
    Sketcher.Constraint("DistanceX", -1, 1, 34, 3, 49.110914),
    Sketcher.Constraint("DistanceY", 34, 3, -1, 1, 183.284426),
    Sketcher.Constraint("DistanceX", -1, 1, 35, 3, 24.767345),
    Sketcher.Constraint("DistanceY", 35, 3, -1, 1, 188.126662),
    Sketcher.Constraint("DistanceX", -1, 1, 36, 3, 18.241035),
    Sketcher.Constraint("DistanceY", 37, 3, -1, 1, 134.988134),
    Sketcher.Constraint("DistanceX", -1, 1, 38, 3, 59.060902),
    Sketcher.Constraint("DistanceY", 38, 3, -1, 1, 126.656513),
    Sketcher.Constraint("DistanceY", 43, 3, -1, 1, 160.033527),
    Sketcher.Constraint("DistanceY", 44, 3, -1, 1, 117.863955),
    Sketcher.Constraint("DistanceX", 48, 3, -1, 1, 145.356933),
    Sketcher.Constraint("DistanceY", 51, 3, -1, 1, 57.058925),
    Sketcher.Constraint("DistanceX", 52, 3, -1, 1, 133.281944),
    Sketcher.Constraint("DistanceY", 52, 3, -1, 1, 42.023635),
    Sketcher.Constraint("DistanceX", 60, 3, -1, 1, 129.112165),
    Sketcher.Constraint("DistanceY", -1, 1, 67, 3, 168.310306),
    Sketcher.Constraint("DistanceY", -1, 1, 68, 3, 123.959764),
])
pocket2 = body.newObject("PartDesign::Pocket", "Pocket001")
pocket2.Profile = sketch3
pocket2.Length = 2

sketch4 = body.newObject("Sketcher::SketchObject", "Sketch003")
sketch4.AttachmentSupport = (doc.getObject("XY_Plane"), [""])
sketch4.MapMode = "FlatFace"
sketch4.AttachmentOffset = App.Placement(V(0, 0, 2), App.Rotation())
sketch4.addGeometry([
    Part.LineSegment(V(-28, 70, 0), V(28, 70, 0)),
    Part.LineSegment(V(28, 70, 0), V(29, 106, 0)),
    Part.ArcOfCircle(Part.Circle(V(0, 0, 0), V(0, 0, 1), 110), math.radians(75), math.radians(105)),
    Part.LineSegment(V(-29, 106, 0), V(-28, 70, 0)),
    Part.LineSegment(V(47, 59, 0), V(75, 11, 0)),
    Part.LineSegment(V(75, 11, 0), V(106, 28, 0)),
    Part.ArcOfCircle(Part.Circle(V(0, 0, 0), V(0, 0, 1), 110), math.radians(15), math.radians(45)),
    Part.LineSegment(V(77, 78, 0), V(47, 59, 0)),
    Part.LineSegment(V(75, -11, 0), V(47, -59, 0)),
    Part.LineSegment(V(47, -59, 0), V(77, -78, 0)),
    Part.ArcOfCircle(Part.Circle(V(0, 0, 0), V(0, 0, 1), 110), math.radians(-45), math.radians(-15)),
    Part.LineSegment(V(106, -28, 0), V(75, -11, 0)),
    Part.LineSegment(V(28, -70, 0), V(-28, -70, 0)),
    Part.LineSegment(V(-28, -70, 0), V(-29, -106, 0)),
    Part.ArcOfCircle(Part.Circle(V(0, 0, 0), V(0, 0, 1), 110), math.radians(-105), math.radians(-75)),
    Part.LineSegment(V(29, -106, 0), V(28, -70, 0)),
    Part.LineSegment(V(-47, -59, 0), V(-75, -11, 0)),
    Part.LineSegment(V(-75, -11, 0), V(-106, -28, 0)),
    Part.ArcOfCircle(Part.Circle(V(0, 0, 0), V(0, 0, 1), 110), math.radians(-165), math.radians(-135)),
    Part.LineSegment(V(-77, -78, 0), V(-47, -59, 0)),
    Part.LineSegment(V(-75, 11, 0), V(-47, 59, 0)),
    Part.LineSegment(V(-47, 59, 0), V(-77, 78, 0)),
    Part.ArcOfCircle(Part.Circle(V(0, 0, 0), V(0, 0, 1), 110), math.radians(135), math.radians(165)),
    Part.LineSegment(V(-106, 28, 0), V(-75, 11, 0)),
], False)
sketch4.addConstraint([
    Sketcher.Constraint("Coincident", 0, 2, 1, 1),
    Sketcher.Constraint("Coincident", 1, 2, 2, 1),
    Sketcher.Constraint("Coincident", 2, 2, 3, 1),
    Sketcher.Constraint("Coincident", 3, 2, 0, 1),
    Sketcher.Constraint("Coincident", 4, 2, 5, 1),
    Sketcher.Constraint("Coincident", 5, 2, 6, 1),
    Sketcher.Constraint("Coincident", 6, 2, 7, 1),
    Sketcher.Constraint("Coincident", 7, 2, 4, 1),
    Sketcher.Constraint("Coincident", 8, 2, 9, 1),
    Sketcher.Constraint("Coincident", 9, 2, 10, 1),
    Sketcher.Constraint("Coincident", 10, 2, 11, 1),
    Sketcher.Constraint("Coincident", 11, 2, 8, 1),
    Sketcher.Constraint("Coincident", 12, 2, 13, 1),
    Sketcher.Constraint("Coincident", 13, 2, 14, 1),
    Sketcher.Constraint("Coincident", 14, 2, 15, 1),
    Sketcher.Constraint("Coincident", 15, 2, 12, 1),
    Sketcher.Constraint("Coincident", 16, 2, 17, 1),
    Sketcher.Constraint("Coincident", 17, 2, 18, 1),
    Sketcher.Constraint("Coincident", 18, 2, 19, 1),
    Sketcher.Constraint("Coincident", 19, 2, 16, 1),
    Sketcher.Constraint("Coincident", 20, 2, 21, 1),
    Sketcher.Constraint("Coincident", 21, 2, 22, 1),
    Sketcher.Constraint("Coincident", 22, 2, 23, 1),
    Sketcher.Constraint("Coincident", 23, 2, 20, 1),
    Sketcher.Constraint("Horizontal", 0),
    Sketcher.Constraint("Horizontal", 12),
    Sketcher.Constraint("Coincident", 2, 3, -1, 1),
    Sketcher.Constraint("Coincident", 6, 3, -1, 1),
    Sketcher.Constraint("Coincident", 10, 3, -1, 1),
    Sketcher.Constraint("Coincident", 14, 3, -1, 1),
    Sketcher.Constraint("Coincident", 18, 3, -1, 1),
    Sketcher.Constraint("Coincident", 22, 3, -1, 1),
    Sketcher.Constraint("Equal", 2, 6),
    Sketcher.Constraint("Equal", 6, 10),
    Sketcher.Constraint("Equal", 10, 14),
    Sketcher.Constraint("Equal", 14, 18),
    Sketcher.Constraint("Equal", 18, 22),
    Sketcher.Constraint("Symmetric", 0, 2, 12, 2, -1, 1),
    Sketcher.Constraint("Symmetric", 4, 2, 16, 2, -1, 1),
    Sketcher.Constraint("Symmetric", 7, 2, 19, 2, -1, 1),
    Sketcher.Constraint("Symmetric", 8, 2, 20, 2, -1, 1),
    Sketcher.Constraint("Symmetric", 11, 2, 23, 2, -1, 1),
    Sketcher.Constraint("Symmetric", 11, 2, 16, 2, -2),
    Sketcher.Constraint("Symmetric", 8, 2, 19, 2, -2),
    Sketcher.Constraint("Parallel", 1, 13),
    Sketcher.Constraint("Parallel", 3, 15),
    Sketcher.Constraint("Parallel", 5, 17),
    Sketcher.Constraint("Parallel", 7, 19),
    Sketcher.Constraint("Parallel", 9, 21),
    Sketcher.Constraint("Parallel", 11, 23),
    Sketcher.Constraint("Horizontal", 1, 2, 2, 2),
    Sketcher.Constraint("Horizontal", 13, 2, 14, 2),
    Sketcher.Constraint("Horizontal", 10, 2, 17, 2),
    Sketcher.Constraint("Horizontal", 9, 2, 18, 2),
    Sketcher.Constraint("Vertical", 3, 2, 12, 2),
    Sketcher.Constraint("Equal", 3, 5),
    Sketcher.Constraint("Equal", 5, 7),
    Sketcher.Constraint("Radius", 2, 110.0),
    Sketcher.Constraint("Angle", 4, Q("-60 deg")),
    Sketcher.Constraint("DistanceY", -1, 1, 0, 2, 70.0),
    Sketcher.Constraint("DistanceY", 8, 2, 4, 2, 70.0),
    Sketcher.Constraint("DistanceX", 0, 1, 0, 2, 55.82),
    Sketcher.Constraint("Distance", 4, 55.82),
    Sketcher.Constraint("DistanceX", 2, 2, 1, 2, 58.61),
    Sketcher.Constraint("DistanceX", 6, 2, 5, 2, 29.305),
])
pocket3 = body.newObject("PartDesign::Pocket", "Pocket002")
pocket3.Profile = sketch4
pocket3.Length = 2

sketch5 = body.newObject("Sketcher::SketchObject", "Sketch004")
sketch5.AttachmentSupport = (doc.getObject("XY_Plane"), [""])
sketch5.MapMode = "FlatFace"
sketch5.AttachmentOffset = App.Placement(V(0, 0, 2), App.Rotation())
sketch5.addGeometry([
    Part.Circle(V(48.5, 84, 0), V(0, 0, 1), 4.2),
    Part.Circle(V(97, 0, 0), V(0, 0, 1), 4.2),
    Part.Circle(V(48.5, -84, 0), V(0, 0, 1), 4.2),
    Part.Circle(V(-48.5, -84, 0), V(0, 0, 1), 4.2),
    Part.Circle(V(-97, 0, 0), V(0, 0, 1), 4.2),
    Part.Circle(V(-48.5, 84, 0), V(0, 0, 1), 4.2),
], False)
sketch5.addConstraint([
    Sketcher.Constraint("Equal", 0, 1),
    Sketcher.Constraint("Equal", 1, 2),
    Sketcher.Constraint("Equal", 2, 3),
    Sketcher.Constraint("Equal", 3, 4),
    Sketcher.Constraint("Equal", 4, 5),
    Sketcher.Constraint("Symmetric", 0, 3, 3, 3, -1, 1),
    Sketcher.Constraint("Symmetric", 1, 3, 4, 3, -1, 1),
    Sketcher.Constraint("Symmetric", 2, 3, 5, 3, -1, 1),
    Sketcher.Constraint("Symmetric", 2, 3, 3, 3, -2),
    Sketcher.Constraint("PointOnObject", 1, 3, -1),
    Sketcher.Constraint("Diameter", 0, 8.5),
    Sketcher.Constraint("DistanceX", -1, 1, 1, 3, 97.0),
    Sketcher.Constraint("DistanceX", 3, 3, 2, 3, 97.0),
    Sketcher.Constraint("DistanceY", 2, 3, 0, 3, 168.008928),
])
pocket4 = body.newObject("PartDesign::Pocket", "Pocket003")
pocket4.Profile = sketch5
pocket4.Length = 2
doc.recompute()

fillet = body.newObject("PartDesign::Fillet", "Fillet")
fillet.Base = (pocket4, edges_at(pocket4, [
    (-27.91, 70, 1),
    (-29.305, 106.025, 1),
    (29.305, 106.025, 1),
    (27.91, 70, 1),
    (46.667, 59.171, 1),
    (77.168, 78.391, 1),
    (106.473, 27.633, 1),
    (74.577, 10.829, 1),
    (74.577, -10.829, 1),
    (106.473, -27.633, 1),
    (77.168, -78.391, 1),
    (46.667, -59.171, 1),
    (27.91, -70, 1),
    (29.305, -106.025, 1),
    (-29.305, -106.025, 1),
    (-27.91, -70, 1),
    (-46.667, -59.171, 1),
    (-77.168, -78.391, 1),
    (-106.473, -27.633, 1),
    (-74.577, -10.829, 1),
    (-74.577, 10.829, 1),
    (-106.473, 27.633, 1),
    (-77.168, 78.391, 1),
    (-46.667, 59.171, 1),
]))
fillet.Radius = 2

doc.recompute()
